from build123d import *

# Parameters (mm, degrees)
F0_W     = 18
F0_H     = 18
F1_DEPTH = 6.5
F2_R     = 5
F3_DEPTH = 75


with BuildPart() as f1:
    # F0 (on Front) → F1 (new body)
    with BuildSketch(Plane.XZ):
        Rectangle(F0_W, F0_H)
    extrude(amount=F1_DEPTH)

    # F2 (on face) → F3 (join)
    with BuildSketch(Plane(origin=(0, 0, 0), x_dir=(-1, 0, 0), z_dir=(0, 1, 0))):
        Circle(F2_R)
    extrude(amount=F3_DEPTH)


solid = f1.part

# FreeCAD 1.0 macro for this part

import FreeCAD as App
import Part
import Sketcher

V = App.Vector
Q = App.Units.Quantity


def add_polygon(sketch, points):
    """Adds a closed chain of lines whose ends are joined by coincident constraints."""
    first, n = sketch.GeometryCount, len(points)
    for a, b in zip(points, points[1:] + points[:1]):
        sketch.addGeometry(Part.LineSegment(App.Vector(*a, 0), App.Vector(*b, 0)), False)
    for i in range(n):
        sketch.addConstraint(Sketcher.Constraint("Coincident", first + i, 2, first + (i + 1) % n, 1))

doc = App.newDocument("Part")
body = doc.addObject("PartDesign::Body", "Body")

# Sketch on XZ plane
sketch1 = doc.addObject("Sketcher::SketchObject", "Sketch")
body.addObject(sketch1)
sketch1.AttachmentSupport = (doc.XZ_Plane, [""])
sketch1.MapMode = "FlatFace"
add_polygon(sketch1, [(-9, 9), (-9, -9), (9, -9), (9, 9)])  # lines 0-3
sketch1.addConstraint([
    Sketcher.Constraint("Vertical", 0),
    Sketcher.Constraint("Horizontal", 1),
    Sketcher.Constraint("Vertical", 2),
    Sketcher.Constraint("Horizontal", 3),
    Sketcher.Constraint("Symmetric", 0, 2, 2, 2, -1, 1),
    Sketcher.Constraint("Equal", 3, 0),
    Sketcher.Constraint("DistanceX", 1, 1, 1, 2, Q("18 mm")),
])
pad1 = doc.addObject("PartDesign::Pad", "Pad")
body.addObject(pad1)
pad1.Profile = sketch1
pad1.Length = 6.5

# Sketch on XZ plane
sketch2 = doc.addObject("Sketcher::SketchObject", "Sketch001")
body.addObject(sketch2)
sketch2.AttachmentSupport = (doc.XZ_Plane, [""])
sketch2.MapMode = "FlatFace"
sketch2.addGeometry(Part.Circle(V(0, 0, 0), V(0, 0, 1), 5), False)
sketch2.addConstraint([
    Sketcher.Constraint("Coincident", 0, 3, -1, 1),
    Sketcher.Constraint("Diameter", 0, Q("10 mm")),
])
pad2 = doc.addObject("PartDesign::Pad", "Pad001")
body.addObject(pad2)
pad2.Profile = sketch2
pad2.Length = 75
pad2.Reversed = True

doc.recompute()
